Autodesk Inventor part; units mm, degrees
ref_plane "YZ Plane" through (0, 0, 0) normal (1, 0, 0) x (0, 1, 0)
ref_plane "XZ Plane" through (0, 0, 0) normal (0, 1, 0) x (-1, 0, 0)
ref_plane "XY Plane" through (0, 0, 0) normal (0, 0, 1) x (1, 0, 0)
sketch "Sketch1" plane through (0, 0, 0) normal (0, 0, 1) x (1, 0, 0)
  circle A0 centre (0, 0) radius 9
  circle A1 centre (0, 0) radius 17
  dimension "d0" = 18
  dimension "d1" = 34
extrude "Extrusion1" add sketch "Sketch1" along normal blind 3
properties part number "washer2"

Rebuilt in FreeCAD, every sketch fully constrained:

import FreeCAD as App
import Part
import Sketcher
from FreeCAD import Vector

doc = App.newDocument("Part")
body = doc.addObject("PartDesign::Body", "Body")

# Sketch on XY plane
sketch1 = body.newObject("Sketcher::SketchObject", "Sketch")
sketch1.AttachmentSupport = (doc.getObject("XY_Plane"), [""])
sketch1.MapMode = "FlatFace"
sketch1.addGeometry(Part.Circle(Vector(0, 0, 0), Vector(0, 0, 1), 17), False)
sketch1.addGeometry(Part.Circle(Vector(0, 0, 0), Vector(0, 0, 1), 9), False)
sketch1.addConstraint(Sketcher.Constraint("Coincident", 0, 3, -1, 1))
sketch1.addConstraint(Sketcher.Constraint("Coincident", 1, 3, -1, 1))
sketch1.addConstraint(Sketcher.Constraint("Diameter", 0, 34.0))
sketch1.addConstraint(Sketcher.Constraint("Diameter", 1, 18.0))
pad1 = body.newObject("PartDesign::Pad", "Pad")
pad1.Profile = sketch1
pad1.Length = 3

doc.recompute()
